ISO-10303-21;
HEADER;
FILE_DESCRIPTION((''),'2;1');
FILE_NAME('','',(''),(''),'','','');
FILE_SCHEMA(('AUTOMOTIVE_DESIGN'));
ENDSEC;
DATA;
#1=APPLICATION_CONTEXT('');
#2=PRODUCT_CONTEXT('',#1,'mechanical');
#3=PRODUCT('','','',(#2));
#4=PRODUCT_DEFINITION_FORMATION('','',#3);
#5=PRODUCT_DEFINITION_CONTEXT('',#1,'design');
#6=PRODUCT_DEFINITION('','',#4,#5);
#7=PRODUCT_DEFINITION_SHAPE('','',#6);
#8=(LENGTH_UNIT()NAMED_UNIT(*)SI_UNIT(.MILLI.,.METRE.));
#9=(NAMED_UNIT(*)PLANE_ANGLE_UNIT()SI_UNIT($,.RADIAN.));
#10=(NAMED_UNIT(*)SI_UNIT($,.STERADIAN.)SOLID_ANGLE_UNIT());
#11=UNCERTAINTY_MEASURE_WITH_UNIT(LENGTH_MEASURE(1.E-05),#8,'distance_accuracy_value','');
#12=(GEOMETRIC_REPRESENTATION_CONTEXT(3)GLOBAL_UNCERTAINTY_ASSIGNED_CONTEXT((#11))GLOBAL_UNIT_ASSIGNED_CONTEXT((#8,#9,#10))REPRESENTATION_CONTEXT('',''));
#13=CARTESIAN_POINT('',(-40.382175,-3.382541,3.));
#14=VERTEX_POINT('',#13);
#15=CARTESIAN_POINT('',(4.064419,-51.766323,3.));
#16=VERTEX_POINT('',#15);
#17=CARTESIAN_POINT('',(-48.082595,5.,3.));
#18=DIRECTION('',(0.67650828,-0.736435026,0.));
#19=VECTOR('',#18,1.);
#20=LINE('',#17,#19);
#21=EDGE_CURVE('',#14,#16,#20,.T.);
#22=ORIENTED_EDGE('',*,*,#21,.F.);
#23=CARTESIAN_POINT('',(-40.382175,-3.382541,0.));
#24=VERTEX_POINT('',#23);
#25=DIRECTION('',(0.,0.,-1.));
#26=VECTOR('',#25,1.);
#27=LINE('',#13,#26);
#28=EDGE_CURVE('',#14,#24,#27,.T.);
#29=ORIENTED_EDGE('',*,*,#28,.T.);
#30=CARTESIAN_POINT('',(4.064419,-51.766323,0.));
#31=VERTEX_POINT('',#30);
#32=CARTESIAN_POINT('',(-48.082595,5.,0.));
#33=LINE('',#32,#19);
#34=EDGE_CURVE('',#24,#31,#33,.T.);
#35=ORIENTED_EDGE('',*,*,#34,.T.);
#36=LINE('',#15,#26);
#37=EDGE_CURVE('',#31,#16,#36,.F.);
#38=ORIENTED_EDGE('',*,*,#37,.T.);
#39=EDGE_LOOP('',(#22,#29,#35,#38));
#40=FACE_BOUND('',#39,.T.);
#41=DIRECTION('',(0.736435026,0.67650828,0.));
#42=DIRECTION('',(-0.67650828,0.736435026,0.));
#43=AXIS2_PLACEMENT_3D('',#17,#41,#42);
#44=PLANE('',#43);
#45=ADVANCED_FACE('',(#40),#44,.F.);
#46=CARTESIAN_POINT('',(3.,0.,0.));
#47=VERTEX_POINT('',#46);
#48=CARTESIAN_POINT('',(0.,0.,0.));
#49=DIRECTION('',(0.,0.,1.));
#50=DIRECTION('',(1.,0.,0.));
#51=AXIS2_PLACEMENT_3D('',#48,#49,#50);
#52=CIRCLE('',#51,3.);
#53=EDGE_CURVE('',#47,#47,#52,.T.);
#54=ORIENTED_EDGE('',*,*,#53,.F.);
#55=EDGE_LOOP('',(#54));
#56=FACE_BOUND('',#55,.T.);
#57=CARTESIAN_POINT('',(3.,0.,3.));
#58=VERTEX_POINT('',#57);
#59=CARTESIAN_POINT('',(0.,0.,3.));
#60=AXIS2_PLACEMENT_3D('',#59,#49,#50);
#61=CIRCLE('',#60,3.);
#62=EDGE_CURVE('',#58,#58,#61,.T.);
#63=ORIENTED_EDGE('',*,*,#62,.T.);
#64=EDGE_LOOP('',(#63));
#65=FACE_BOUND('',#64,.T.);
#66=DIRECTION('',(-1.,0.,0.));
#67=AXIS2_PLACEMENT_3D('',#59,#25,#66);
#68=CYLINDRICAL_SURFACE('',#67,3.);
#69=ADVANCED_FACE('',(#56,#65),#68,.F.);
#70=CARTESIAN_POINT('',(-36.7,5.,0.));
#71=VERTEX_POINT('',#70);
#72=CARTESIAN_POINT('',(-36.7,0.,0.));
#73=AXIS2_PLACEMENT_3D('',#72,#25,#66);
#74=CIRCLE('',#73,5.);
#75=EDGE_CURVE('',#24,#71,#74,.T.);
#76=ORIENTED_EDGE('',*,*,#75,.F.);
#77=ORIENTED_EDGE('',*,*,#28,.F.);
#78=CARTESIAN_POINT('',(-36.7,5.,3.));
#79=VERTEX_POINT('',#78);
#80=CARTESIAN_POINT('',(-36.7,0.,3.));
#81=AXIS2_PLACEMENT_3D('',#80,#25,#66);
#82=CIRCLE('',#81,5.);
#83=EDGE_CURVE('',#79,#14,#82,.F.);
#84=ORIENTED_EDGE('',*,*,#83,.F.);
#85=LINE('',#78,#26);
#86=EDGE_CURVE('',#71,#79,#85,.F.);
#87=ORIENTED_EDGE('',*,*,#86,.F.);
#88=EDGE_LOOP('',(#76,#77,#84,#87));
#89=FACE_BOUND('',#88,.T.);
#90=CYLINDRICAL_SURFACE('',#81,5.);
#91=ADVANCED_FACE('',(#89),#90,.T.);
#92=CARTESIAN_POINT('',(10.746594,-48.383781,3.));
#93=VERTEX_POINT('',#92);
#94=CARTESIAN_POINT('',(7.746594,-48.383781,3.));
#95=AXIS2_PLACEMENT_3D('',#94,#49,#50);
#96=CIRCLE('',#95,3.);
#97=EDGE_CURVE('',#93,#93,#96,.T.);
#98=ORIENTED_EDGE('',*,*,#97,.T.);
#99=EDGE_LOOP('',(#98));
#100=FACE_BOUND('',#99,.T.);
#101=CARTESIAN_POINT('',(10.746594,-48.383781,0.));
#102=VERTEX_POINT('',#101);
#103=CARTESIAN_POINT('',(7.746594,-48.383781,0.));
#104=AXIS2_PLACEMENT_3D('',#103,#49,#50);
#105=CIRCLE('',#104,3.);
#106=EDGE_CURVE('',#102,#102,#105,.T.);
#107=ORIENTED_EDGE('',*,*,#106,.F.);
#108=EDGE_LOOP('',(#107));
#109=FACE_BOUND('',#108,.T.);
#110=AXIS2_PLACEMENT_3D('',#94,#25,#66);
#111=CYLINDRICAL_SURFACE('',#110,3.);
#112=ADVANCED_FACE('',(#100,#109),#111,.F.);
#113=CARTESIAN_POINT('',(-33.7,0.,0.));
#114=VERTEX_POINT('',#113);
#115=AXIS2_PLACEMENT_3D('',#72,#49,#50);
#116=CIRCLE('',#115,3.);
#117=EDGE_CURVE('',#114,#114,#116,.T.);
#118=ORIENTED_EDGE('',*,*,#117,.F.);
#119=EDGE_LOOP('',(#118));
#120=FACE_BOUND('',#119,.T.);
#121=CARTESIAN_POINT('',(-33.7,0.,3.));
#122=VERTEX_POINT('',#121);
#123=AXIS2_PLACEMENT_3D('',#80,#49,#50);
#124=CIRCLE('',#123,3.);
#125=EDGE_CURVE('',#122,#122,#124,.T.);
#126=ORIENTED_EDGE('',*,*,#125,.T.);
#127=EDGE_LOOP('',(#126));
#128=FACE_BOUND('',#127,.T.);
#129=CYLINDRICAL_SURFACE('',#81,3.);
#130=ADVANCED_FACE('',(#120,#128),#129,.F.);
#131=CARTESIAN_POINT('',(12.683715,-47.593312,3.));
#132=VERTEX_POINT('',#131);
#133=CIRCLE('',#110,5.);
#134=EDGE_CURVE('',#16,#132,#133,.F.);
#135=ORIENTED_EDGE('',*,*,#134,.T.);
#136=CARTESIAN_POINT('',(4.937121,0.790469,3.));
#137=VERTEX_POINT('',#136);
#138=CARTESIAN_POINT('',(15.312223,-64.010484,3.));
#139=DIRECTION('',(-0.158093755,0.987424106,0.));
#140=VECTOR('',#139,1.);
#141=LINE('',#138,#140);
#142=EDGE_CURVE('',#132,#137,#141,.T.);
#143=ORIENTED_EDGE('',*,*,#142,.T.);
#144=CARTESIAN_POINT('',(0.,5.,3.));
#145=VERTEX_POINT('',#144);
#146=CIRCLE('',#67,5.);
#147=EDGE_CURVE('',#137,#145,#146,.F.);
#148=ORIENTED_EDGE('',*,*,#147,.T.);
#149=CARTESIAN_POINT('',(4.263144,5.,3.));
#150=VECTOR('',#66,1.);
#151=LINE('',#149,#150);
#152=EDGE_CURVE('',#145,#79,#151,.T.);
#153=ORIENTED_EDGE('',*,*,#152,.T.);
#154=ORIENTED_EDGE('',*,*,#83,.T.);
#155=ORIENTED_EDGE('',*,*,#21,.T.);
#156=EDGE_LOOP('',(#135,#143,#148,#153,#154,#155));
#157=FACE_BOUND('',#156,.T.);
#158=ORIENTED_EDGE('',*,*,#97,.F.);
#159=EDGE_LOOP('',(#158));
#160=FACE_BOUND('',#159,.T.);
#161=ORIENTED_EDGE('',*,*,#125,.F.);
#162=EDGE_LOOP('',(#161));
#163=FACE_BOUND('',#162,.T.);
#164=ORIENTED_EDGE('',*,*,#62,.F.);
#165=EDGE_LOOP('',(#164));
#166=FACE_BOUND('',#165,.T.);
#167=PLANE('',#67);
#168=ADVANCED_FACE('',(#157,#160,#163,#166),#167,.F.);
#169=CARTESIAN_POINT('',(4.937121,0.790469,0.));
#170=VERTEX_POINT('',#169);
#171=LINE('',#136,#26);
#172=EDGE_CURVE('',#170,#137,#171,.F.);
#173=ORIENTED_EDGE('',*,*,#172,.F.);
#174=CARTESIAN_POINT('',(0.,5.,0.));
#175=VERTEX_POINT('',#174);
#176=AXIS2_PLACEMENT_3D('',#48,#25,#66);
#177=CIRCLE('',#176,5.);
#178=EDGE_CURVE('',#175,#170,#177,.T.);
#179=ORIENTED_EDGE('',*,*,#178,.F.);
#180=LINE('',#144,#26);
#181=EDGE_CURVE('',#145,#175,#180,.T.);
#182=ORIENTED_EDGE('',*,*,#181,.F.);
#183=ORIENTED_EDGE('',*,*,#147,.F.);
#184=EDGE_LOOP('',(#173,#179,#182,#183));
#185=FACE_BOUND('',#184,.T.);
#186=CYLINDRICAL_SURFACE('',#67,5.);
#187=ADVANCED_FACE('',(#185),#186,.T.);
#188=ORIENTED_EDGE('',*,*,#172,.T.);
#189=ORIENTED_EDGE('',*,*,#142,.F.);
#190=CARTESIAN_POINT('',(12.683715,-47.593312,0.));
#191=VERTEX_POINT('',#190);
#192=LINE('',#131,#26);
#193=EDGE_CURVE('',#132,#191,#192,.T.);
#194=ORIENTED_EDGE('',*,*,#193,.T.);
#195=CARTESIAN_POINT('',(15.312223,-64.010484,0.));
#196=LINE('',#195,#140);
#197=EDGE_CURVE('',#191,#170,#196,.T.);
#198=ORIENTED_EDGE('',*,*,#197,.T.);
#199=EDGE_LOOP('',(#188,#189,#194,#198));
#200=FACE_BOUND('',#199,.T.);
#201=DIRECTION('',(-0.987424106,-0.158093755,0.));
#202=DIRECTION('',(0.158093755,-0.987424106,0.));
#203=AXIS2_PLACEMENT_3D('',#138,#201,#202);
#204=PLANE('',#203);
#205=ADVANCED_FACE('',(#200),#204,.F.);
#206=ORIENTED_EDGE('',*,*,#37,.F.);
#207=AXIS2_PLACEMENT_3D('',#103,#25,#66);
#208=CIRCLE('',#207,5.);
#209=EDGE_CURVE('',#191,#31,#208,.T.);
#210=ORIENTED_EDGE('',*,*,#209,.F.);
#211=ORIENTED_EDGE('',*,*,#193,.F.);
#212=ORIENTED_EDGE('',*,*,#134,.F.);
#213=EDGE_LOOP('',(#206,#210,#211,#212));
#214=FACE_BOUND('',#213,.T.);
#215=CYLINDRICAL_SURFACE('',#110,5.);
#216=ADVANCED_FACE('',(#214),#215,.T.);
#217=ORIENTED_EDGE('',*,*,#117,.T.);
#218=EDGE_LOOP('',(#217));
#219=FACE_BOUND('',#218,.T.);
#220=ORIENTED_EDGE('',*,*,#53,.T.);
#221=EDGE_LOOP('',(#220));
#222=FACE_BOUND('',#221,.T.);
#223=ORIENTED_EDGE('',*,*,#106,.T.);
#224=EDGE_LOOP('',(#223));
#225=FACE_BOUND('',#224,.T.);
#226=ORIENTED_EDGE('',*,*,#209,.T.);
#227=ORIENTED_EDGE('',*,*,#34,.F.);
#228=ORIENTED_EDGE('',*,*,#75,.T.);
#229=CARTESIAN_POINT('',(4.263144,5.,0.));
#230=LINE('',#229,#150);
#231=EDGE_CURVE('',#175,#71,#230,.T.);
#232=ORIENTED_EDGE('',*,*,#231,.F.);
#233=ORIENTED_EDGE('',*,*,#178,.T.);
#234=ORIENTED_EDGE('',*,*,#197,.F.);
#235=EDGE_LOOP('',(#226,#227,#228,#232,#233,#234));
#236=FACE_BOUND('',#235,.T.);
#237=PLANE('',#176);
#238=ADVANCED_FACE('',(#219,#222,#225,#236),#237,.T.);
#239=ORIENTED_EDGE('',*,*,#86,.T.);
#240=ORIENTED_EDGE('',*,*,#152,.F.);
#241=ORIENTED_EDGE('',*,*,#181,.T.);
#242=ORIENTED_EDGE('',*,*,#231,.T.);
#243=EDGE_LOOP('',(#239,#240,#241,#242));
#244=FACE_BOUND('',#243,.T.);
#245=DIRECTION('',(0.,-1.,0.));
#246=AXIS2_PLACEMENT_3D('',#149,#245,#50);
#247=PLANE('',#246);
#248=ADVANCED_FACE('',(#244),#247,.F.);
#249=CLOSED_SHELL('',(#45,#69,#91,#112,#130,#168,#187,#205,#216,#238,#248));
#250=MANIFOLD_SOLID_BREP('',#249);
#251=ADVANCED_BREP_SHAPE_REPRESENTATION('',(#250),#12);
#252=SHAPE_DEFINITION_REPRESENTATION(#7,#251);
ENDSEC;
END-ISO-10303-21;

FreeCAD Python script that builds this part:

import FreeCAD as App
import Part
import Sketcher

V = App.Vector
Q = App.Units.Quantity


def edges_at(feature, points):
    """Names of the edges that pass closest to the given points."""
    edges = feature.Shape.Edges
    near = lambda p: min(range(len(edges)), key=lambda i: edges[i].distToShape(Part.Vertex(*p))[0])
    return sorted({f"Edge{near(p) + 1}" for p in points})

doc = App.newDocument("Part")
body = doc.addObject("PartDesign::Body", "Body")

# Sketch on XY plane
sketch1 = body.newObject("Sketcher::SketchObject", "Sketch")
sketch1.AttachmentSupport = (doc.getObject("XY_Plane"), [""])
sketch1.MapMode = "FlatFace"
sketch1.addGeometry([
    Part.LineSegment(V(-48.082595, 5, 0), V(15.312223, -64.010484, 0)),  # 0
    Part.LineSegment(V(15.312223, -64.010484, 0), V(4.263144, 5, 0)),  # 1
    Part.LineSegment(V(4.263144, 5, 0), V(-48.082595, 5, 0)),  # 2
    Part.Circle(V(7.746594, -48.383781, 0), V(0, 0, 1), 3),  # 3
    Part.Circle(V(-36.7, 0, 0), V(0, 0, 1), 3),  # 4
    Part.Circle(V(0, 0, 0), V(0, 0, 1), 3),  # 5
], False)
sketch1.addConstraint([
    Sketcher.Constraint("Coincident", 0, 2, 1, 1),
    Sketcher.Constraint("Coincident", 1, 2, 2, 1),
    Sketcher.Constraint("Coincident", 2, 2, 0, 1),
    Sketcher.Constraint("Horizontal", 2),
    Sketcher.Constraint("Coincident", 5, 3, -1, 1),
    Sketcher.Constraint("Equal", 3, 4),
    Sketcher.Constraint("Equal", 4, 5),
    Sketcher.Constraint("PointOnObject", 4, 3, -1),
    Sketcher.Constraint("Diameter", 3, Q("6 mm")),
    Sketcher.Constraint("DistanceY", -1, 1, 1, 2, Q("5 mm")),
    Sketcher.Constraint("DistanceX", 4, 3, -1, 1, Q("36.7 mm")),
    Sketcher.Constraint("DistanceX", 2, 2, 2, 1, Q("52.345739 mm")),
    Sketcher.Constraint("DistanceY", 3, 3, -1, 1, Q("48.383781 mm")),
    Sketcher.Constraint("DistanceX", 3, 3, 0, 2, Q("7.565629 mm")),
    Sketcher.Constraint("DistanceX", 1, 2, 3, 3, Q("3.48345 mm")),
    Sketcher.Constraint("Distance", 0, Q("93.708857 mm")),
    Sketcher.Constraint("DistanceX", -1, 1, 3, 3, Q("7.746594 mm")),
])
pad1 = body.newObject("PartDesign::Pad", "Pad")
pad1.Profile = sketch1
pad1.Length = 3
doc.recompute()

fillet = body.newObject("PartDesign::Fillet", "Fillet")
fillet.Base = (pad1, edges_at(pad1, [(4.263, 5, 1.5), (15.312, -64.01, 1.5), (-48.083, 5, 1.5)]))
fillet.Radius = 5

doc.recompute()
